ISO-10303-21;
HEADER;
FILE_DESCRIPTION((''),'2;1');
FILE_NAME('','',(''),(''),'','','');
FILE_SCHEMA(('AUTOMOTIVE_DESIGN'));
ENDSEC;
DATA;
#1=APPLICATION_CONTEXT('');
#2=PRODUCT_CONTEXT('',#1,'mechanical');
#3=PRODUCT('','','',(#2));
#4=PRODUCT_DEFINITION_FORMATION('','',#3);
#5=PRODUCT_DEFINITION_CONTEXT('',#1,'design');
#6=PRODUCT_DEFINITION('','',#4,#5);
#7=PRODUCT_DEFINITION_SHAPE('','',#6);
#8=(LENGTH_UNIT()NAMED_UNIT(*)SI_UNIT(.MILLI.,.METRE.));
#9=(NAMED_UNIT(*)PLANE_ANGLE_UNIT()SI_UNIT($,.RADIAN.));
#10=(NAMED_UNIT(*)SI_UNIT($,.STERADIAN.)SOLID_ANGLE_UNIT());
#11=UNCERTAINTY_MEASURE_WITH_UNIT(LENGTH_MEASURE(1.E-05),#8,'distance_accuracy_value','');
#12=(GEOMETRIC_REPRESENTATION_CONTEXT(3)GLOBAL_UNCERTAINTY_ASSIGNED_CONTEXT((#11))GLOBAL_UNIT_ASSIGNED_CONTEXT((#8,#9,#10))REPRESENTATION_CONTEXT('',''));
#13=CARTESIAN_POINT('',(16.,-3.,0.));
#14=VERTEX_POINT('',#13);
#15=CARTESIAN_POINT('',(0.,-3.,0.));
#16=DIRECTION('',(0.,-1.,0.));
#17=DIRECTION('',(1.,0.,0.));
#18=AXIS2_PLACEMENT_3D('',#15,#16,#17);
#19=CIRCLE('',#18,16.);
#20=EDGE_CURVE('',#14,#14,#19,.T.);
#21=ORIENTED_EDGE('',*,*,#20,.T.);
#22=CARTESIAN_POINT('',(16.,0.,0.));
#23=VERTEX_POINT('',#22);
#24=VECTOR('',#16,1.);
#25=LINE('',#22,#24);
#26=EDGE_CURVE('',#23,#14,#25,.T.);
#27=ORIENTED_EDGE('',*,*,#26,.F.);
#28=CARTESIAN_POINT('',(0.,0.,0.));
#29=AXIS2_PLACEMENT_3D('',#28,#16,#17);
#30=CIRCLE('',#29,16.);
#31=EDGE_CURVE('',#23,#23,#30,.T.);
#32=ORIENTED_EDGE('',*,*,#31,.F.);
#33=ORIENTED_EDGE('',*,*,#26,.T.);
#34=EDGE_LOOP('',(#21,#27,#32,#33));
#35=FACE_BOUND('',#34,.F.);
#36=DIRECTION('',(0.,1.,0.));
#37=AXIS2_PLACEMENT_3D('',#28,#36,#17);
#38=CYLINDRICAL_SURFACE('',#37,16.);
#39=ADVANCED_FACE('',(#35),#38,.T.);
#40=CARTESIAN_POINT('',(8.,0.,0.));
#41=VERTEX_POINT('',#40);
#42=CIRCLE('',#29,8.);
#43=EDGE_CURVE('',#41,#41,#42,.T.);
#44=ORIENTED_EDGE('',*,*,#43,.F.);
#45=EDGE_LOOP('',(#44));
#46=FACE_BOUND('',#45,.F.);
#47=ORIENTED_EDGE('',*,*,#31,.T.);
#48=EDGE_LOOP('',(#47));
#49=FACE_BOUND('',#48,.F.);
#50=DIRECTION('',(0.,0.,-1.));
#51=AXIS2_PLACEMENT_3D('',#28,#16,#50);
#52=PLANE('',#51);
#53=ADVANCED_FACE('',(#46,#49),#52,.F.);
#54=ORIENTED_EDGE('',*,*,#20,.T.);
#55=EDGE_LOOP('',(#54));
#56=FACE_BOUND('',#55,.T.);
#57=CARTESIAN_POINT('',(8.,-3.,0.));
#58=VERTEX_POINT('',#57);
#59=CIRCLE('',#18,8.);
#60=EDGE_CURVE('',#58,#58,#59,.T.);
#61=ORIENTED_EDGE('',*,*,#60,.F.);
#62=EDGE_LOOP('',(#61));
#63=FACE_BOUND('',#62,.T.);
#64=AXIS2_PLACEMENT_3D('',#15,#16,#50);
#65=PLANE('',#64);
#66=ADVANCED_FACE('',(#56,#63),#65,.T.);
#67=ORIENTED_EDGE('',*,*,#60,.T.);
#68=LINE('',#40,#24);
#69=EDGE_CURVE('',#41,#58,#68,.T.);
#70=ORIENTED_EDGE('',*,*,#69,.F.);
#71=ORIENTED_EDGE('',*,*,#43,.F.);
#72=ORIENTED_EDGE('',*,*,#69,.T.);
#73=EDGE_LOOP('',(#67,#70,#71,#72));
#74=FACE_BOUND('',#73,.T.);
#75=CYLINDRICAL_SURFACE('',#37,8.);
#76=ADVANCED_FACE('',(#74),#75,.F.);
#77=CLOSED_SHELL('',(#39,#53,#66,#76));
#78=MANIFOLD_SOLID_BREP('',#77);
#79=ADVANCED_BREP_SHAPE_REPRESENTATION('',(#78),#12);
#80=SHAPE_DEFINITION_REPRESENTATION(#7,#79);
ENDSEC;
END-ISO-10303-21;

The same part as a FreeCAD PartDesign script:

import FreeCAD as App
import Part
import Sketcher

V = App.Vector

doc = App.newDocument("Part")
body = doc.addObject("PartDesign::Body", "Body")

# Sketch on XZ plane
sketch1 = body.newObject("Sketcher::SketchObject", "Sketch")
sketch1.AttachmentSupport = (doc.getObject("XZ_Plane"), [""])
sketch1.MapMode = "FlatFace"
sketch1.addGeometry([
    Part.Circle(V(0, 0, 0), V(0, 0, 1), 16),
    Part.Circle(V(0, 0, 0), V(0, 0, 1), 8),
], False)
sketch1.addConstraint([
    Sketcher.Constraint("Coincident", 0, 3, -1, 1),
    Sketcher.Constraint("Coincident", 1, 3, -1, 1),
    Sketcher.Constraint("Diameter", 0, 32.0),
    Sketcher.Constraint("Diameter", 1, 16.0),
])
pad1 = body.newObject("PartDesign::Pad", "Pad")
pad1.Profile = sketch1
pad1.Length = 3

doc.recompute()
